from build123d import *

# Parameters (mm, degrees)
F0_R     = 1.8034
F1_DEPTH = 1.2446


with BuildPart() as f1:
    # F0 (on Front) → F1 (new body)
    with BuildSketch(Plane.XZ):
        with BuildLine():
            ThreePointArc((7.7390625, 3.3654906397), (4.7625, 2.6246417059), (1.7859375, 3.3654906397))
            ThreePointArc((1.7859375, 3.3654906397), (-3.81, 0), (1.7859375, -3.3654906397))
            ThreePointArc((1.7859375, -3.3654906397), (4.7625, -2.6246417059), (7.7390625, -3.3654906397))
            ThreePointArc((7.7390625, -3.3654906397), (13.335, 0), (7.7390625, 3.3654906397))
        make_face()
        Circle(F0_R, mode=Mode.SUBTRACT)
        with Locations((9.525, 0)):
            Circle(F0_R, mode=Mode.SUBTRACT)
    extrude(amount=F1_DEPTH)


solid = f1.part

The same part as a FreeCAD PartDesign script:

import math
import FreeCAD as App
import Part
import Sketcher
from FreeCAD import Vector
Q = App.Units.Quantity

doc = App.newDocument("Part")
body = doc.addObject("PartDesign::Body", "Body")

# Sketch on XZ plane
sketch1 = body.newObject("Sketcher::SketchObject", "Sketch")
sketch1.AttachmentSupport = (doc.getObject("XZ_Plane"), [""])
sketch1.MapMode = "FlatFace"
sketch1.addGeometry([
    Part.ArcOfCircle(Part.Circle(Vector(4.8, 9, 0), Vector(0, 0, 1), 6.3), math.radians(-118), math.radians(-62)),  # 0
    Part.ArcOfCircle(Part.Circle(Vector(0, 0, 0), Vector(0, 0, 1), 3.8), math.radians(62), math.radians(298)),  # 1
    Part.ArcOfCircle(Part.Circle(Vector(4.8, -9, 0), Vector(0, 0, 1), 6.3), math.radians(62), math.radians(118)),  # 2
    Part.ArcOfCircle(Part.Circle(Vector(9.5, 0, 0), Vector(0, 0, 1), 3.8), math.radians(-118), math.radians(118)),  # 3
    Part.Circle(Vector(0, 0, 0), Vector(0, 0, 1), 1.8),  # 4
    Part.Circle(Vector(9.5, 0, 0), Vector(0, 0, 1), 1.8),  # 5
], False)
sketch1.addConstraint([
    Sketcher.Constraint("Tangent", 0, 1, 1, 1),
    Sketcher.Constraint("Tangent", 1, 2, 2, 2),
    Sketcher.Constraint("Tangent", 2, 1, 3, 1),
    Sketcher.Constraint("Tangent", 3, 2, 0, 2),
    Sketcher.Constraint("Coincident", 1, 3, -1, 1),
    Sketcher.Constraint("Coincident", 4, 3, -1, 1),
    Sketcher.Constraint("Coincident", 5, 3, 3, 3),
    Sketcher.Constraint("Equal", 0, 2),
    Sketcher.Constraint("Equal", 1, 3),
    Sketcher.Constraint("Equal", 4, 5),
    Sketcher.Constraint("PointOnObject", 3, 3, -1),
    Sketcher.Constraint("Radius", 0, Q("0.25 in")),
    Sketcher.Constraint("Radius", 1, Q("0.15 in")),
    Sketcher.Constraint("Diameter", 4, Q("0.142 in")),
    Sketcher.Constraint("DistanceX", -1, 1, 0, 3, Q("0.1875 in")),
])
pad1 = body.newObject("PartDesign::Pad", "Pad")
pad1.Profile = sketch1
pad1.Length = Q("0.049 in")

doc.recompute()
